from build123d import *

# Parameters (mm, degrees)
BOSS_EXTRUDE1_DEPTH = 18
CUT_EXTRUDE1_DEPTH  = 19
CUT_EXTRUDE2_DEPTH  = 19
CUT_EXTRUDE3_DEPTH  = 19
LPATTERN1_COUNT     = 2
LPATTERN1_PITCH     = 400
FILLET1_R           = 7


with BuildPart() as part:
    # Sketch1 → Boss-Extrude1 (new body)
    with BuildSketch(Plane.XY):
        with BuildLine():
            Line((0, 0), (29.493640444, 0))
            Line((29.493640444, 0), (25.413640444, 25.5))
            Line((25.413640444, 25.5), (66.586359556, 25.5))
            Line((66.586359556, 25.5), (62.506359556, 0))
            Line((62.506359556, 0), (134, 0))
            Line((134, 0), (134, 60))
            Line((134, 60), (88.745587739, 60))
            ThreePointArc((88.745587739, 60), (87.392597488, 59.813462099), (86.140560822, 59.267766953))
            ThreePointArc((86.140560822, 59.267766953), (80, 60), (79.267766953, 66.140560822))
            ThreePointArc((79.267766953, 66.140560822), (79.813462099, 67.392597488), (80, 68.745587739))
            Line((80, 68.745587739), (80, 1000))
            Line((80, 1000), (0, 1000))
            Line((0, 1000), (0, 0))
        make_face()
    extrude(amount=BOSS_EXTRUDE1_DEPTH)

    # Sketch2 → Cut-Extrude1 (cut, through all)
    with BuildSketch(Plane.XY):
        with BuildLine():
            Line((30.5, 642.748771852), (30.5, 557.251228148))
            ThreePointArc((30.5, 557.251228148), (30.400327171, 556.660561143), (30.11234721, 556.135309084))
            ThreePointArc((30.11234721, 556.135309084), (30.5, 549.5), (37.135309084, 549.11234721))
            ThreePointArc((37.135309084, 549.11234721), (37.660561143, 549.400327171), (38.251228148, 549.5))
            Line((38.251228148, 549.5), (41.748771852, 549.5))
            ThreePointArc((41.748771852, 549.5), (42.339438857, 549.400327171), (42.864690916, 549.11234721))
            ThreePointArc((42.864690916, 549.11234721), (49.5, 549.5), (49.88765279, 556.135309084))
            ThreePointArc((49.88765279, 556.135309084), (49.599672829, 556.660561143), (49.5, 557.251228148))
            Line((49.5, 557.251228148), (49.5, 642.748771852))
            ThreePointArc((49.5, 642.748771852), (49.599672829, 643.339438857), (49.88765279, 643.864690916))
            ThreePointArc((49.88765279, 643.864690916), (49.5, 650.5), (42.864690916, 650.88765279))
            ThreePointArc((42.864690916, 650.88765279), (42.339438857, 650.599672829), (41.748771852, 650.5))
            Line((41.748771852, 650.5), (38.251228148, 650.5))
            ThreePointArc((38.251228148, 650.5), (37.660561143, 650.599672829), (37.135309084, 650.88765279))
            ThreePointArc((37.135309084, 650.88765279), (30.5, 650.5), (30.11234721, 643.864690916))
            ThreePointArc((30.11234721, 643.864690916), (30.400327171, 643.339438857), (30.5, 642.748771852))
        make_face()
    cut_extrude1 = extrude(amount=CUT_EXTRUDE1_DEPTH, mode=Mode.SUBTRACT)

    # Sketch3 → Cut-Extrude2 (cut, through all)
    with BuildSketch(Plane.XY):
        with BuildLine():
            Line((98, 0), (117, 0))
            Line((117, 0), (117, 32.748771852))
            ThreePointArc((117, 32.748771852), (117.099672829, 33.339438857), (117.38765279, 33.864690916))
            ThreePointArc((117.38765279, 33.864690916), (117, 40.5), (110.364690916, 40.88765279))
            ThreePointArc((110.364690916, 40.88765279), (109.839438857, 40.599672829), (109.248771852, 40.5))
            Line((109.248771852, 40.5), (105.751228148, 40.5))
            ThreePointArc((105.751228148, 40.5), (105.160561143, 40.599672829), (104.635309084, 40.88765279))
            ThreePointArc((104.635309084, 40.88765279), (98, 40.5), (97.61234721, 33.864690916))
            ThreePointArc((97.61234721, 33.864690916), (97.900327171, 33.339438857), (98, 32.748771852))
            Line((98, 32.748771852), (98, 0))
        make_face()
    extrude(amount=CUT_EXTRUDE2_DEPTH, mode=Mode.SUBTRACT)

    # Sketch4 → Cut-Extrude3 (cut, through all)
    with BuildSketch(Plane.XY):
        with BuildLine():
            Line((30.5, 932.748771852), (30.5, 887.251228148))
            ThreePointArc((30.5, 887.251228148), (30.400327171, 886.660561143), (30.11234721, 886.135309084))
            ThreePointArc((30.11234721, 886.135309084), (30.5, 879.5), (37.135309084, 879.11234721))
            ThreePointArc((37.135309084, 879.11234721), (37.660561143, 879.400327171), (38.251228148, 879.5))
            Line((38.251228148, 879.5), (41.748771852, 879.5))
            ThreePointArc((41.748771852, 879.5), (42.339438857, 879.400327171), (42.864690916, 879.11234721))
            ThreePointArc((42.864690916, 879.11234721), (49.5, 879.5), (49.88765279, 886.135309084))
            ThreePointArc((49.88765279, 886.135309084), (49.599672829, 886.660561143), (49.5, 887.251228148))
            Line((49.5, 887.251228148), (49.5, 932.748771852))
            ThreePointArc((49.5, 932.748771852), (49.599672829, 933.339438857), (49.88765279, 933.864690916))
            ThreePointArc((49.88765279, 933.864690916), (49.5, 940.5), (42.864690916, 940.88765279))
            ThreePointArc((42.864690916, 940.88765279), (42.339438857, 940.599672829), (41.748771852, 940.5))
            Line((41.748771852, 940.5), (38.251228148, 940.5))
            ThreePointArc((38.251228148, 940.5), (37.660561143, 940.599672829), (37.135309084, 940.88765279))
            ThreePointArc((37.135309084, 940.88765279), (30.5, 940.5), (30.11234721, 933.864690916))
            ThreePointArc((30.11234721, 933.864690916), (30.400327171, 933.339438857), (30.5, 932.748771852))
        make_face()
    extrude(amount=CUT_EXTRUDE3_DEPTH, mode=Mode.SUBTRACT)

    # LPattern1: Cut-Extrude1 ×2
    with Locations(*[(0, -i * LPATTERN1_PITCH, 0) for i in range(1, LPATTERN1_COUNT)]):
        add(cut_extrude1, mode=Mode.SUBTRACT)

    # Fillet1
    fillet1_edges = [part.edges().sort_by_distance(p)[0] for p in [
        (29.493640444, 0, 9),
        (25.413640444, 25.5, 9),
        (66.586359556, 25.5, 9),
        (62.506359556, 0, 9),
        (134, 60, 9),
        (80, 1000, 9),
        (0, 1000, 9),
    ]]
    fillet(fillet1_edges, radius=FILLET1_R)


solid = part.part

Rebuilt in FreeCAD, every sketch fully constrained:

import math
import FreeCAD as App
import Part
import Sketcher

V = App.Vector


def edges_at(feature, points):
    """Names of the edges that pass closest to the given points."""
    edges = feature.Shape.Edges
    near = lambda p: min(range(len(edges)), key=lambda i: edges[i].distToShape(Part.Vertex(*p))[0])
    return sorted({f"Edge{near(p) + 1}" for p in points})

doc = App.newDocument("Part")
params = doc.addObject("Spreadsheet::Sheet", "Params")
for row, (alias, value) in enumerate([
    ("sketch1_radius", "5 mm"),
    ("sketch1_width", "80 mm"),
    ("sketch1_height", "60 mm"),
    ("sketch1_height2", "1000 mm"),
    ("pad1_length", "18 mm"),
    ("sketch2_radius", "5 mm"),
    ("sketch2_radius2", "1.8 mm"),
    ("sketch3_radius", "5 mm"),
    ("sketch3_radius2", "1.8 mm"),
    ("sketch3_width", "19 mm"),
    ("sketch4_radius", "5 mm"),
    ("sketch4_radius2", "1.8 mm"),
    ("linearpattern_pitch", "400 mm"),
    ("fillet_radius", "7 mm"),
], start=1):
    params.set(f"A{row}", alias)
    params.set(f"B{row}", "=" + value)
    params.setAlias(f"B{row}", alias)

body = doc.addObject("PartDesign::Body", "Body")

# Sketch on XY plane
sketch1 = doc.addObject("Sketcher::SketchObject", "Sketch")
body.addObject(sketch1)
sketch1.AttachmentSupport = (doc.XY_Plane, [""])
sketch1.MapMode = "FlatFace"
sketch1.addGeometry(Part.LineSegment(V(0, 0, 0), V(29.49364, 0, 0)), False)
sketch1.addGeometry(Part.LineSegment(V(29.49364, 0, 0), V(25.41364, 25.5, 0)), False)
sketch1.addGeometry(Part.LineSegment(V(25.41364, 25.5, 0), V(66.58636, 25.5, 0)), False)
sketch1.addGeometry(Part.LineSegment(V(66.58636, 25.5, 0), V(62.50636, 0, 0)), False)
sketch1.addGeometry(Part.LineSegment(V(62.50636, 0, 0), V(134, 0, 0)), False)
sketch1.addGeometry(Part.LineSegment(V(134, 0, 0), V(134, 60, 0)), False)
sketch1.addGeometry(Part.LineSegment(V(134, 60, 0), V(88.745588, 60, 0)), False)
sketch1.addGeometry(Part.ArcOfCircle(Part.Circle(V(88.745588, 55, 0), V(0, 0, 1), 5), math.radians(90), math.radians(121.399715)), False)
sketch1.addGeometry(Part.ArcOfCircle(Part.Circle(V(83.535534, 63.535534, 0), V(0, 0, 1), 5), math.radians(148.600285), math.radians(301.399715)), False)
sketch1.addGeometry(Part.ArcOfCircle(Part.Circle(V(75, 68.745588, 0), V(0, 0, 1), 5), math.radians(-31.399715), math.radians(0)), False)
sketch1.addGeometry(Part.LineSegment(V(80, 68.745588, 0), V(80, 1000, 0)), False)
sketch1.addGeometry(Part.LineSegment(V(80, 1000, 0), V(0, 1000, 0)), False)
sketch1.addGeometry(Part.LineSegment(V(0, 1000, 0), V(0, 0, 0)), False)
sketch1.addConstraint(Sketcher.Constraint("Coincident", 0, 2, 1, 1))
sketch1.addConstraint(Sketcher.Constraint("Coincident", 1, 2, 2, 1))
sketch1.addConstraint(Sketcher.Constraint("Coincident", 2, 2, 3, 1))
sketch1.addConstraint(Sketcher.Constraint("Coincident", 3, 2, 4, 1))
sketch1.addConstraint(Sketcher.Constraint("Coincident", 4, 2, 5, 1))
sketch1.addConstraint(Sketcher.Constraint("Coincident", 5, 2, 6, 1))
sketch1.addConstraint(Sketcher.Constraint("Tangent", 6, 2, 7, 1))
sketch1.addConstraint(Sketcher.Constraint("Tangent", 7, 2, 8, 2))
sketch1.addConstraint(Sketcher.Constraint("Tangent", 8, 1, 9, 1))
sketch1.addConstraint(Sketcher.Constraint("Tangent", 9, 2, 10, 1))
sketch1.addConstraint(Sketcher.Constraint("Coincident", 10, 2, 11, 1))
sketch1.addConstraint(Sketcher.Constraint("Coincident", 11, 2, 12, 1))
sketch1.addConstraint(Sketcher.Constraint("Coincident", 12, 2, 0, 1))
sketch1.addConstraint(Sketcher.Constraint("Horizontal", 0))
sketch1.addConstraint(Sketcher.Constraint("Horizontal", 2))
sketch1.addConstraint(Sketcher.Constraint("Horizontal", 4))
sketch1.addConstraint(Sketcher.Constraint("Vertical", 5))
sketch1.addConstraint(Sketcher.Constraint("Horizontal", 6))
sketch1.addConstraint(Sketcher.Constraint("Vertical", 10))
sketch1.addConstraint(Sketcher.Constraint("Horizontal", 11))
sketch1.addConstraint(Sketcher.Constraint("Vertical", 12))
sketch1.addConstraint(Sketcher.Constraint("Coincident", 12, 2, -1, 1))
sketch1.addConstraint(Sketcher.Constraint("Equal", 7, 8))
sketch1.addConstraint(Sketcher.Constraint("Equal", 8, 9))
sketch1.addConstraint(Sketcher.Constraint("PointOnObject", 3, 2, -1))
sketch1.addConstraint(Sketcher.Constraint("Equal", 1, 3))
sketch1.addConstraint(Sketcher.Constraint("Radius", 7, 5.0))
sketch1.addConstraint(Sketcher.Constraint("DistanceX", 11, 2, 11, 1, 80.0))
sketch1.addConstraint(Sketcher.Constraint("DistanceY", 5, 1, 5, 2, 60.0))
sketch1.addConstraint(Sketcher.Constraint("DistanceY", 12, 2, 12, 1, 1000.0))
sketch1.addConstraint(Sketcher.Constraint("DistanceX", -1, 1, 4, 2, 134.0))
sketch1.addConstraint(Sketcher.Constraint("DistanceY", -1, 1, 1, 2, 25.5))
sketch1.addConstraint(Sketcher.Constraint("DistanceX", 1, 2, 0, 2, 4.08))
sketch1.addConstraint(Sketcher.Constraint("DistanceX", 0, 1, 0, 2, 29.49364))
sketch1.addConstraint(Sketcher.Constraint("DistanceX", 2, 1, 2, 2, 41.172719))
sketch1.addConstraint(Sketcher.Constraint("DistanceX", 2, 2, 7, 2, 19.554201))
sketch1.addConstraint(Sketcher.Constraint("DistanceX", 6, 2, 6, 1, 45.254412))
sketch1.setExpression("Constraints[26]", "Params.sketch1_radius")
sketch1.setExpression("Constraints[27]", "Params.sketch1_width")
sketch1.setExpression("Constraints[28]", "Params.sketch1_height")
sketch1.setExpression("Constraints[29]", "Params.sketch1_height2")
pad1 = doc.addObject("PartDesign::Pad", "Pad")
body.addObject(pad1)
pad1.Profile = sketch1
pad1.setExpression("Length", "Params.pad1_length")

# Sketch on XY plane
sketch2 = doc.addObject("Sketcher::SketchObject", "Sketch001")
body.addObject(sketch2)
sketch2.AttachmentSupport = (doc.XY_Plane, [""])
sketch2.MapMode = "FlatFace"
sketch2.addGeometry(Part.LineSegment(V(30.5, 642.748772, 0), V(30.5, 557.251228, 0)), False)
sketch2.addGeometry(Part.ArcOfCircle(Part.Circle(V(28.7, 557.251228, 0), V(0, 0, 1), 1.8), math.radians(-38.312851), math.radians(0)), False)
sketch2.addGeometry(Part.ArcOfCircle(Part.Circle(V(34.035534, 553.035534, 0), V(0, 0, 1), 5), math.radians(141.687149), math.radians(308.312851)), False)
sketch2.addGeometry(Part.ArcOfCircle(Part.Circle(V(38.251228, 547.7, 0), V(0, 0, 1), 1.8), math.radians(90), math.radians(128.312851)), False)
sketch2.addGeometry(Part.LineSegment(V(38.251228, 549.5, 0), V(41.748772, 549.5, 0)), False)
sketch2.addGeometry(Part.ArcOfCircle(Part.Circle(V(41.748772, 547.7, 0), V(0, 0, 1), 1.8), math.radians(51.687149), math.radians(90)), False)
sketch2.addGeometry(Part.ArcOfCircle(Part.Circle(V(45.964466, 553.035534, 0), V(0, 0, 1), 5), math.radians(-128.312851), math.radians(38.312851)), False)
sketch2.addGeometry(Part.ArcOfCircle(Part.Circle(V(51.3, 557.251228, 0), V(0, 0, 1), 1.8), math.radians(-180), math.radians(-141.687149)), False)
sketch2.addGeometry(Part.LineSegment(V(49.5, 557.251228, 0), V(49.5, 642.748772, 0)), False)
sketch2.addGeometry(Part.ArcOfCircle(Part.Circle(V(51.3, 642.748772, 0), V(0, 0, 1), 1.8), math.radians(141.687149), math.radians(180)), False)
sketch2.addGeometry(Part.ArcOfCircle(Part.Circle(V(45.964466, 646.964466, 0), V(0, 0, 1), 5), math.radians(-38.312851), math.radians(128.312851)), False)
sketch2.addGeometry(Part.ArcOfCircle(Part.Circle(V(41.748772, 652.3, 0), V(0, 0, 1), 1.8), math.radians(-90), math.radians(-51.687149)), False)
sketch2.addGeometry(Part.LineSegment(V(41.748772, 650.5, 0), V(38.251228, 650.5, 0)), False)
sketch2.addGeometry(Part.ArcOfCircle(Part.Circle(V(38.251228, 652.3, 0), V(0, 0, 1), 1.8), math.radians(-128.312851), math.radians(-90)), False)
sketch2.addGeometry(Part.ArcOfCircle(Part.Circle(V(34.035534, 646.964466, 0), V(0, 0, 1), 5), math.radians(51.687149), math.radians(218.312851)), False)
sketch2.addGeometry(Part.ArcOfCircle(Part.Circle(V(28.7, 642.748772, 0), V(0, 0, 1), 1.8), math.radians(0), math.radians(38.312851)), False)
sketch2.addConstraint(Sketcher.Constraint("Tangent", 0, 2, 1, 2))
sketch2.addConstraint(Sketcher.Constraint("Tangent", 1, 1, 2, 1))
sketch2.addConstraint(Sketcher.Constraint("Tangent", 2, 2, 3, 2))
sketch2.addConstraint(Sketcher.Constraint("Tangent", 3, 1, 4, 1))
sketch2.addConstraint(Sketcher.Constraint("Tangent", 4, 2, 5, 2))
sketch2.addConstraint(Sketcher.Constraint("Tangent", 5, 1, 6, 1))
sketch2.addConstraint(Sketcher.Constraint("Tangent", 6, 2, 7, 2))
sketch2.addConstraint(Sketcher.Constraint("Tangent", 7, 1, 8, 1))
sketch2.addConstraint(Sketcher.Constraint("Tangent", 8, 2, 9, 2))
sketch2.addConstraint(Sketcher.Constraint("Tangent", 9, 1, 10, 1))
sketch2.addConstraint(Sketcher.Constraint("Tangent", 10, 2, 11, 2))
sketch2.addConstraint(Sketcher.Constraint("Tangent", 11, 1, 12, 1))
sketch2.addConstraint(Sketcher.Constraint("Tangent", 12, 2, 13, 2))
sketch2.addConstraint(Sketcher.Constraint("Tangent", 13, 1, 14, 1))
sketch2.addConstraint(Sketcher.Constraint("Tangent", 14, 2, 15, 2))
sketch2.addConstraint(Sketcher.Constraint("Tangent", 15, 1, 0, 1))
sketch2.addConstraint(Sketcher.Constraint("Vertical", 0))
sketch2.addConstraint(Sketcher.Constraint("Horizontal", 4))
sketch2.addConstraint(Sketcher.Constraint("Vertical", 8))
sketch2.addConstraint(Sketcher.Constraint("Horizontal", 12))
sketch2.addConstraint(Sketcher.Constraint("Equal", 1, 3))
sketch2.addConstraint(Sketcher.Constraint("Equal", 3, 5))
sketch2.addConstraint(Sketcher.Constraint("Equal", 2, 6))
sketch2.addConstraint(Sketcher.Constraint("Equal", 5, 7))
sketch2.addConstraint(Sketcher.Constraint("Equal", 7, 9))
sketch2.addConstraint(Sketcher.Constraint("Equal", 6, 10))
sketch2.addConstraint(Sketcher.Constraint("Equal", 9, 11))
sketch2.addConstraint(Sketcher.Constraint("Equal", 11, 13))
sketch2.addConstraint(Sketcher.Constraint("Equal", 10, 14))
sketch2.addConstraint(Sketcher.Constraint("Equal", 13, 15))
sketch2.addConstraint(Sketcher.Constraint("Horizontal", 2, 3, 6, 3))
sketch2.addConstraint(Sketcher.Constraint("Horizontal", 1, 3, 7, 3))
sketch2.addConstraint(Sketcher.Constraint("Horizontal", 10, 3, 14, 3))
sketch2.addConstraint(Sketcher.Constraint("Horizontal", 9, 3, 15, 3))
sketch2.addConstraint(Sketcher.Constraint("Vertical", 6, 3, 10, 3))
sketch2.addConstraint(Sketcher.Constraint("Vertical", 5, 3, 11, 3))
sketch2.addConstraint(Sketcher.Constraint("Radius", 2, 5.0))
sketch2.addConstraint(Sketcher.Constraint("Radius", 1, 1.8))
sketch2.addConstraint(Sketcher.Constraint("DistanceX", -1, 1, 1, 3, 28.7))
sketch2.addConstraint(Sketcher.Constraint("DistanceY", -1, 1, 3, 3, 547.7))
sketch2.addConstraint(Sketcher.Constraint("DistanceX", -1, 1, 7, 3, 51.3))
sketch2.addConstraint(Sketcher.Constraint("DistanceY", -1, 1, 11, 3, 652.3))
sketch2.addConstraint(Sketcher.Constraint("DistanceX", 4, 1, 4, 2, 3.497544))
sketch2.addConstraint(Sketcher.Constraint("DistanceY", 0, 2, 0, 1, 85.497544))
sketch2.setExpression("Constraints[36]", "Params.sketch2_radius")
sketch2.setExpression("Constraints[37]", "Params.sketch2_radius2")
pocket1 = doc.addObject("PartDesign::Pocket", "Pocket")
body.addObject(pocket1)
pocket1.Profile = sketch2
pocket1.Type = "ThroughAll"
pocket1.Reversed = True

# Sketch on XY plane
sketch3 = doc.addObject("Sketcher::SketchObject", "Sketch002")
body.addObject(sketch3)
sketch3.AttachmentSupport = (doc.XY_Plane, [""])
sketch3.MapMode = "FlatFace"
sketch3.addGeometry(Part.LineSegment(V(98, 0, 0), V(117, 0, 0)), False)
sketch3.addGeometry(Part.LineSegment(V(117, 0, 0), V(117, 32.748772, 0)), False)
sketch3.addGeometry(Part.ArcOfCircle(Part.Circle(V(118.8, 32.748772, 0), V(0, 0, 1), 1.8), math.radians(141.687149), math.radians(180)), False)
sketch3.addGeometry(Part.ArcOfCircle(Part.Circle(V(113.464466, 36.964466, 0), V(0, 0, 1), 5), math.radians(-38.312851), math.radians(128.312851)), False)
sketch3.addGeometry(Part.ArcOfCircle(Part.Circle(V(109.248772, 42.3, 0), V(0, 0, 1), 1.8), math.radians(-90), math.radians(-51.687149)), False)
sketch3.addGeometry(Part.LineSegment(V(109.248772, 40.5, 0), V(105.751228, 40.5, 0)), False)
sketch3.addGeometry(Part.ArcOfCircle(Part.Circle(V(105.751228, 42.3, 0), V(0, 0, 1), 1.8), math.radians(-128.312851), math.radians(-90)), False)
sketch3.addGeometry(Part.ArcOfCircle(Part.Circle(V(101.535534, 36.964466, 0), V(0, 0, 1), 5), math.radians(51.687149), math.radians(218.312851)), False)
sketch3.addGeometry(Part.ArcOfCircle(Part.Circle(V(96.2, 32.748772, 0), V(0, 0, 1), 1.8), math.radians(0), math.radians(38.312851)), False)
sketch3.addGeometry(Part.LineSegment(V(98, 32.748772, 0), V(98, 0, 0)), False)
sketch3.addConstraint(Sketcher.Constraint("Coincident", 0, 2, 1, 1))
sketch3.addConstraint(Sketcher.Constraint("Tangent", 1, 2, 2, 2))
sketch3.addConstraint(Sketcher.Constraint("Tangent", 2, 1, 3, 1))
sketch3.addConstraint(Sketcher.Constraint("Tangent", 3, 2, 4, 2))
sketch3.addConstraint(Sketcher.Constraint("Tangent", 4, 1, 5, 1))
sketch3.addConstraint(Sketcher.Constraint("Tangent", 5, 2, 6, 2))
sketch3.addConstraint(Sketcher.Constraint("Tangent", 6, 1, 7, 1))
sketch3.addConstraint(Sketcher.Constraint("Tangent", 7, 2, 8, 2))
sketch3.addConstraint(Sketcher.Constraint("Tangent", 8, 1, 9, 1))
sketch3.addConstraint(Sketcher.Constraint("Coincident", 9, 2, 0, 1))
sketch3.addConstraint(Sketcher.Constraint("Horizontal", 0))
sketch3.addConstraint(Sketcher.Constraint("Vertical", 1))
sketch3.addConstraint(Sketcher.Constraint("Horizontal", 5))
sketch3.addConstraint(Sketcher.Constraint("Vertical", 9))
sketch3.addConstraint(Sketcher.Constraint("Equal", 2, 4))
sketch3.addConstraint(Sketcher.Constraint("Equal", 4, 6))
sketch3.addConstraint(Sketcher.Constraint("Equal", 3, 7))
sketch3.addConstraint(Sketcher.Constraint("Equal", 6, 8))
sketch3.addConstraint(Sketcher.Constraint("PointOnObject", 0, 2, -1))
sketch3.addConstraint(Sketcher.Constraint("Horizontal", 3, 3, 7, 3))
sketch3.addConstraint(Sketcher.Constraint("Horizontal", 2, 3, 8, 3))
sketch3.addConstraint(Sketcher.Constraint("Radius", 3, 5.0))
sketch3.addConstraint(Sketcher.Constraint("Radius", 2, 1.8))
sketch3.addConstraint(Sketcher.Constraint("DistanceX", 0, 1, 0, 2, 19.0))
sketch3.addConstraint(Sketcher.Constraint("DistanceX", -1, 1, 0, 2, 117.0))
sketch3.addConstraint(Sketcher.Constraint("DistanceY", -1, 1, 4, 3, 42.3))
sketch3.addConstraint(Sketcher.Constraint("DistanceY", 1, 1, 1, 2, 32.748772))
sketch3.addConstraint(Sketcher.Constraint("DistanceX", 5, 2, 5, 1, 3.497544))
sketch3.setExpression("Constraints[21]", "Params.sketch3_radius")
sketch3.setExpression("Constraints[22]", "Params.sketch3_radius2")
sketch3.setExpression("Constraints[23]", "Params.sketch3_width")
pocket2 = doc.addObject("PartDesign::Pocket", "Pocket001")
body.addObject(pocket2)
pocket2.Profile = sketch3
pocket2.Type = "ThroughAll"
pocket2.Reversed = True

# Sketch on XY plane
sketch4 = doc.addObject("Sketcher::SketchObject", "Sketch003")
body.addObject(sketch4)
sketch4.AttachmentSupport = (doc.XY_Plane, [""])
sketch4.MapMode = "FlatFace"
sketch4.addGeometry(Part.LineSegment(V(30.5, 932.748772, 0), V(30.5, 887.251228, 0)), False)
sketch4.addGeometry(Part.ArcOfCircle(Part.Circle(V(28.7, 887.251228, 0), V(0, 0, 1), 1.8), math.radians(-38.312851), math.radians(0)), False)
sketch4.addGeometry(Part.ArcOfCircle(Part.Circle(V(34.035534, 883.035534, 0), V(0, 0, 1), 5), math.radians(141.687149), math.radians(308.312851)), False)
sketch4.addGeometry(Part.ArcOfCircle(Part.Circle(V(38.251228, 877.7, 0), V(0, 0, 1), 1.8), math.radians(90), math.radians(128.312851)), False)
sketch4.addGeometry(Part.LineSegment(V(38.251228, 879.5, 0), V(41.748772, 879.5, 0)), False)
sketch4.addGeometry(Part.ArcOfCircle(Part.Circle(V(41.748772, 877.7, 0), V(0, 0, 1), 1.8), math.radians(51.687149), math.radians(90)), False)
sketch4.addGeometry(Part.ArcOfCircle(Part.Circle(V(45.964466, 883.035534, 0), V(0, 0, 1), 5), math.radians(-128.312851), math.radians(38.312851)), False)
sketch4.addGeometry(Part.ArcOfCircle(Part.Circle(V(51.3, 887.251228, 0), V(0, 0, 1), 1.8), math.radians(-180), math.radians(-141.687149)), False)
sketch4.addGeometry(Part.LineSegment(V(49.5, 887.251228, 0), V(49.5, 932.748772, 0)), False)
sketch4.addGeometry(Part.ArcOfCircle(Part.Circle(V(51.3, 932.748772, 0), V(0, 0, 1), 1.8), math.radians(141.687149), math.radians(180)), False)
sketch4.addGeometry(Part.ArcOfCircle(Part.Circle(V(45.964466, 936.964466, 0), V(0, 0, 1), 5), math.radians(-38.312851), math.radians(128.312851)), False)
sketch4.addGeometry(Part.ArcOfCircle(Part.Circle(V(41.748772, 942.3, 0), V(0, 0, 1), 1.8), math.radians(-90), math.radians(-51.687149)), False)
sketch4.addGeometry(Part.LineSegment(V(41.748772, 940.5, 0), V(38.251228, 940.5, 0)), False)
sketch4.addGeometry(Part.ArcOfCircle(Part.Circle(V(38.251228, 942.3, 0), V(0, 0, 1), 1.8), math.radians(-128.312851), math.radians(-90)), False)
sketch4.addGeometry(Part.ArcOfCircle(Part.Circle(V(34.035534, 936.964466, 0), V(0, 0, 1), 5), math.radians(51.687149), math.radians(218.312851)), False)
sketch4.addGeometry(Part.ArcOfCircle(Part.Circle(V(28.7, 932.748772, 0), V(0, 0, 1), 1.8), math.radians(0), math.radians(38.312851)), False)
sketch4.addConstraint(Sketcher.Constraint("Tangent", 0, 2, 1, 2))
sketch4.addConstraint(Sketcher.Constraint("Tangent", 1, 1, 2, 1))
sketch4.addConstraint(Sketcher.Constraint("Tangent", 2, 2, 3, 2))
sketch4.addConstraint(Sketcher.Constraint("Tangent", 3, 1, 4, 1))
sketch4.addConstraint(Sketcher.Constraint("Tangent", 4, 2, 5, 2))
sketch4.addConstraint(Sketcher.Constraint("Tangent", 5, 1, 6, 1))
sketch4.addConstraint(Sketcher.Constraint("Tangent", 6, 2, 7, 2))
sketch4.addConstraint(Sketcher.Constraint("Tangent", 7, 1, 8, 1))
sketch4.addConstraint(Sketcher.Constraint("Tangent", 8, 2, 9, 2))
sketch4.addConstraint(Sketcher.Constraint("Tangent", 9, 1, 10, 1))
sketch4.addConstraint(Sketcher.Constraint("Tangent", 10, 2, 11, 2))
sketch4.addConstraint(Sketcher.Constraint("Tangent", 11, 1, 12, 1))
sketch4.addConstraint(Sketcher.Constraint("Tangent", 12, 2, 13, 2))
sketch4.addConstraint(Sketcher.Constraint("Tangent", 13, 1, 14, 1))
sketch4.addConstraint(Sketcher.Constraint("Tangent", 14, 2, 15, 2))
sketch4.addConstraint(Sketcher.Constraint("Tangent", 15, 1, 0, 1))
sketch4.addConstraint(Sketcher.Constraint("Vertical", 0))
sketch4.addConstraint(Sketcher.Constraint("Horizontal", 4))
sketch4.addConstraint(Sketcher.Constraint("Vertical", 8))
sketch4.addConstraint(Sketcher.Constraint("Horizontal", 12))
sketch4.addConstraint(Sketcher.Constraint("Equal", 1, 3))
sketch4.addConstraint(Sketcher.Constraint("Equal", 3, 5))
sketch4.addConstraint(Sketcher.Constraint("Equal", 2, 6))
sketch4.addConstraint(Sketcher.Constraint("Equal", 5, 7))
sketch4.addConstraint(Sketcher.Constraint("Equal", 7, 9))
sketch4.addConstraint(Sketcher.Constraint("Equal", 6, 10))
sketch4.addConstraint(Sketcher.Constraint("Equal", 9, 11))
sketch4.addConstraint(Sketcher.Constraint("Equal", 11, 13))
sketch4.addConstraint(Sketcher.Constraint("Equal", 10, 14))
sketch4.addConstraint(Sketcher.Constraint("Equal", 13, 15))
sketch4.addConstraint(Sketcher.Constraint("Horizontal", 2, 3, 6, 3))
sketch4.addConstraint(Sketcher.Constraint("Horizontal", 1, 3, 7, 3))
sketch4.addConstraint(Sketcher.Constraint("Horizontal", 10, 3, 14, 3))
sketch4.addConstraint(Sketcher.Constraint("Horizontal", 9, 3, 15, 3))
sketch4.addConstraint(Sketcher.Constraint("Vertical", 6, 3, 10, 3))
sketch4.addConstraint(Sketcher.Constraint("Vertical", 5, 3, 11, 3))
sketch4.addConstraint(Sketcher.Constraint("Radius", 2, 5.0))
sketch4.addConstraint(Sketcher.Constraint("Radius", 1, 1.8))
sketch4.addConstraint(Sketcher.Constraint("DistanceX", -1, 1, 1, 3, 28.7))
sketch4.addConstraint(Sketcher.Constraint("DistanceY", -1, 1, 3, 3, 877.7))
sketch4.addConstraint(Sketcher.Constraint("DistanceX", -1, 1, 7, 3, 51.3))
sketch4.addConstraint(Sketcher.Constraint("DistanceY", -1, 1, 11, 3, 942.3))
sketch4.addConstraint(Sketcher.Constraint("DistanceX", 4, 1, 4, 2, 3.497544))
sketch4.addConstraint(Sketcher.Constraint("DistanceY", 0, 2, 0, 1, 45.497544))
sketch4.setExpression("Constraints[36]", "Params.sketch4_radius")
sketch4.setExpression("Constraints[37]", "Params.sketch4_radius2")
pocket3 = doc.addObject("PartDesign::Pocket", "Pocket002")
body.addObject(pocket3)
pocket3.Profile = sketch4
pocket3.Type = "ThroughAll"
pocket3.Reversed = True
doc.recompute()

linearpattern = doc.addObject("PartDesign::LinearPattern", "LinearPattern")
body.addObject(linearpattern)
linearpattern.Originals = [pocket1]
linearpattern.Direction = (doc.Y_Axis, [""])
linearpattern.Mode = "offset"
linearpattern.setExpression("Offset", "Params.linearpattern_pitch")
linearpattern.Occurrences = 2
linearpattern.Reversed = True
body.Tip = linearpattern
doc.recompute()

fillet = doc.addObject("PartDesign::Fillet", "Fillet")
body.addObject(fillet)
fillet.Base = (linearpattern, edges_at(linearpattern, [
    (29.494, 0, 9),
    (25.414, 25.5, 9),
    (66.586, 25.5, 9),
    (62.506, 0, 9),
    (134, 60, 9),
    (80, 1000, 9),
    (0, 1000, 9),
]))
fillet.setExpression("Radius", "Params.fillet_radius")

doc.recompute()
